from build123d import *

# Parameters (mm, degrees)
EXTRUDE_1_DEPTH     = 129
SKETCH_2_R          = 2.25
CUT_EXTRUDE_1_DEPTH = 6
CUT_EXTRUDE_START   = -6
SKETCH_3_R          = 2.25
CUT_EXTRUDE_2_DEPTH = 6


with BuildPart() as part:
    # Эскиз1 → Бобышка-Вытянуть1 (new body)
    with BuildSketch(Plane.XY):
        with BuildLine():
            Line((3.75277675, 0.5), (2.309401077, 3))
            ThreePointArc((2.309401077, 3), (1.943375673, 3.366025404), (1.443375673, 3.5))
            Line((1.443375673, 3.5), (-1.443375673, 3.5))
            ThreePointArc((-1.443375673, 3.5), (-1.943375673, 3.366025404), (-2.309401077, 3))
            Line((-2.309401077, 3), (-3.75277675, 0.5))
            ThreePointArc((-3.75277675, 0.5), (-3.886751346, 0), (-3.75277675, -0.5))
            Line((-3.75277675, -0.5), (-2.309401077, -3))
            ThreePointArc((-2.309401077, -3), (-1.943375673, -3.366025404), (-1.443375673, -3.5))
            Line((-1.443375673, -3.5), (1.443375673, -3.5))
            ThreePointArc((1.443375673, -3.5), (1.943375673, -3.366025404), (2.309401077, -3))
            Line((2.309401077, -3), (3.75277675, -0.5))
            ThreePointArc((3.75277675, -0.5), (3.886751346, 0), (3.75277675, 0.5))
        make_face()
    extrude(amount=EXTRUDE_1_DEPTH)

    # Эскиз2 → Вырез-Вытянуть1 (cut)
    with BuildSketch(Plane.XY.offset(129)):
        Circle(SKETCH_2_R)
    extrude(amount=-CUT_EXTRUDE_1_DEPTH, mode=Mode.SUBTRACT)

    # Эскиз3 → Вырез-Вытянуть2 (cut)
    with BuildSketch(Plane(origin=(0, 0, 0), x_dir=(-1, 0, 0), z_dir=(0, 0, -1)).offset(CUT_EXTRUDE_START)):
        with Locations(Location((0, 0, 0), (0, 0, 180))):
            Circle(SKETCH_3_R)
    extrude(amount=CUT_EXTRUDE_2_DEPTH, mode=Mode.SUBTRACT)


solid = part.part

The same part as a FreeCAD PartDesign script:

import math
import FreeCAD as App
import Part
import Sketcher
from FreeCAD import Vector
Q = App.Units.Quantity

doc = App.newDocument("Part")
body = doc.addObject("PartDesign::Body", "Body")

# Sketch on XY plane
sketch1 = body.newObject("Sketcher::SketchObject", "Sketch")
sketch1.AttachmentSupport = (doc.getObject("XY_Plane"), [""])
sketch1.MapMode = "FlatFace"
sketch1.addGeometry([
    Part.LineSegment(Vector(3.752777, 0.5, 0), Vector(2.309401, 3, 0)),  # 0
    Part.ArcOfCircle(Part.Circle(Vector(1.443376, 2.5, 0), Vector(0, 0, 1), 1), math.radians(30), math.radians(90)),  # 1
    Part.LineSegment(Vector(1.443376, 3.5, 0), Vector(-1.443376, 3.5, 0)),  # 2
    Part.ArcOfCircle(Part.Circle(Vector(-1.443376, 2.5, 0), Vector(0, 0, 1), 1), math.radians(90), math.radians(150)),  # 3
    Part.LineSegment(Vector(-2.309401, 3, 0), Vector(-3.752777, 0.5, 0)),  # 4
    Part.ArcOfCircle(Part.Circle(Vector(-2.886751, 0, 0), Vector(0, 0, 1), 1), math.radians(150), math.radians(210)),  # 5
    Part.LineSegment(Vector(-3.752777, -0.5, 0), Vector(-2.309401, -3, 0)),  # 6
    Part.ArcOfCircle(Part.Circle(Vector(-1.443376, -2.5, 0), Vector(0, 0, 1), 1), math.radians(-150), math.radians(-90)),  # 7
    Part.LineSegment(Vector(-1.443376, -3.5, 0), Vector(1.443376, -3.5, 0)),  # 8
    Part.ArcOfCircle(Part.Circle(Vector(1.443376, -2.5, 0), Vector(0, 0, 1), 1), math.radians(-90), math.radians(-30)),  # 9
    Part.LineSegment(Vector(2.309401, -3, 0), Vector(3.752777, -0.5, 0)),  # 10
    Part.ArcOfCircle(Part.Circle(Vector(2.886751, 0, 0), Vector(0, 0, 1), 1), math.radians(-30), math.radians(30)),  # 11
], False)
sketch1.addConstraint([
    Sketcher.Constraint("Tangent", 0, 2, 1, 1),
    Sketcher.Constraint("Tangent", 1, 2, 2, 1),
    Sketcher.Constraint("Tangent", 2, 2, 3, 1),
    Sketcher.Constraint("Tangent", 3, 2, 4, 1),
    Sketcher.Constraint("Tangent", 4, 2, 5, 1),
    Sketcher.Constraint("Tangent", 5, 2, 6, 1),
    Sketcher.Constraint("Tangent", 6, 2, 7, 1),
    Sketcher.Constraint("Tangent", 7, 2, 8, 1),
    Sketcher.Constraint("Tangent", 8, 2, 9, 1),
    Sketcher.Constraint("Tangent", 9, 2, 10, 1),
    Sketcher.Constraint("Tangent", 10, 2, 11, 1),
    Sketcher.Constraint("Tangent", 11, 2, 0, 1),
    Sketcher.Constraint("Horizontal", 2),
    Sketcher.Constraint("Horizontal", 8),
    Sketcher.Constraint("Equal", 1, 3),
    Sketcher.Constraint("Equal", 3, 5),
    Sketcher.Constraint("Equal", 5, 7),
    Sketcher.Constraint("Equal", 7, 9),
    Sketcher.Constraint("Equal", 9, 11),
    Sketcher.Constraint("Symmetric", 1, 3, 7, 3, -1, 1),
    Sketcher.Constraint("Symmetric", 5, 3, 11, 3, -1, 1),
    Sketcher.Constraint("Symmetric", 0, 2, 3, 2, -2),
    Sketcher.Constraint("Parallel", 4, 10),
    Sketcher.Constraint("Radius", 1, 1.0),
    Sketcher.Constraint("Angle", 0, Q("120 deg")),
    Sketcher.Constraint("DistanceY", -1, 1, 0, 2, 3.0),
    Sketcher.Constraint("DistanceX", 2, 2, 2, 1, 2.886751),
])
pad1 = body.newObject("PartDesign::Pad", "Pad")
pad1.Profile = sketch1
pad1.Length = 129

# Sketch on XY plane
sketch2 = body.newObject("Sketcher::SketchObject", "Sketch001")
sketch2.AttachmentSupport = (doc.getObject("XY_Plane"), [""])
sketch2.MapMode = "FlatFace"
sketch2.AttachmentOffset = App.Placement(Vector(0, 0, 129), App.Rotation())
sketch2.addGeometry(Part.Circle(Vector(0, 0, 0), Vector(0, 0, 1), 2.25), False)
sketch2.addConstraint([
    Sketcher.Constraint("Coincident", 0, 3, -1, 1),
    Sketcher.Constraint("Diameter", 0, 4.5),
])
pocket1 = body.newObject("PartDesign::Pocket", "Pocket")
pocket1.Profile = sketch2
pocket1.Length = 6

# Sketch on XY plane
sketch3 = body.newObject("Sketcher::SketchObject", "Sketch002")
sketch3.AttachmentSupport = (doc.getObject("XY_Plane"), [""])
sketch3.MapMode = "FlatFace"
sketch3.AttachmentOffset = App.Placement(Vector(0, 0, 6), App.Rotation())
sketch3.addGeometry(Part.Circle(Vector(0, 0, 0), Vector(0, 0, 1), 2.25), False)
sketch3.addConstraint([
    Sketcher.Constraint("Coincident", 0, 3, -1, 1),
    Sketcher.Constraint("Diameter", 0, 4.5),
])
pocket2 = body.newObject("PartDesign::Pocket", "Pocket001")
pocket2.Profile = sketch3
pocket2.Length = 6

doc.recompute()
